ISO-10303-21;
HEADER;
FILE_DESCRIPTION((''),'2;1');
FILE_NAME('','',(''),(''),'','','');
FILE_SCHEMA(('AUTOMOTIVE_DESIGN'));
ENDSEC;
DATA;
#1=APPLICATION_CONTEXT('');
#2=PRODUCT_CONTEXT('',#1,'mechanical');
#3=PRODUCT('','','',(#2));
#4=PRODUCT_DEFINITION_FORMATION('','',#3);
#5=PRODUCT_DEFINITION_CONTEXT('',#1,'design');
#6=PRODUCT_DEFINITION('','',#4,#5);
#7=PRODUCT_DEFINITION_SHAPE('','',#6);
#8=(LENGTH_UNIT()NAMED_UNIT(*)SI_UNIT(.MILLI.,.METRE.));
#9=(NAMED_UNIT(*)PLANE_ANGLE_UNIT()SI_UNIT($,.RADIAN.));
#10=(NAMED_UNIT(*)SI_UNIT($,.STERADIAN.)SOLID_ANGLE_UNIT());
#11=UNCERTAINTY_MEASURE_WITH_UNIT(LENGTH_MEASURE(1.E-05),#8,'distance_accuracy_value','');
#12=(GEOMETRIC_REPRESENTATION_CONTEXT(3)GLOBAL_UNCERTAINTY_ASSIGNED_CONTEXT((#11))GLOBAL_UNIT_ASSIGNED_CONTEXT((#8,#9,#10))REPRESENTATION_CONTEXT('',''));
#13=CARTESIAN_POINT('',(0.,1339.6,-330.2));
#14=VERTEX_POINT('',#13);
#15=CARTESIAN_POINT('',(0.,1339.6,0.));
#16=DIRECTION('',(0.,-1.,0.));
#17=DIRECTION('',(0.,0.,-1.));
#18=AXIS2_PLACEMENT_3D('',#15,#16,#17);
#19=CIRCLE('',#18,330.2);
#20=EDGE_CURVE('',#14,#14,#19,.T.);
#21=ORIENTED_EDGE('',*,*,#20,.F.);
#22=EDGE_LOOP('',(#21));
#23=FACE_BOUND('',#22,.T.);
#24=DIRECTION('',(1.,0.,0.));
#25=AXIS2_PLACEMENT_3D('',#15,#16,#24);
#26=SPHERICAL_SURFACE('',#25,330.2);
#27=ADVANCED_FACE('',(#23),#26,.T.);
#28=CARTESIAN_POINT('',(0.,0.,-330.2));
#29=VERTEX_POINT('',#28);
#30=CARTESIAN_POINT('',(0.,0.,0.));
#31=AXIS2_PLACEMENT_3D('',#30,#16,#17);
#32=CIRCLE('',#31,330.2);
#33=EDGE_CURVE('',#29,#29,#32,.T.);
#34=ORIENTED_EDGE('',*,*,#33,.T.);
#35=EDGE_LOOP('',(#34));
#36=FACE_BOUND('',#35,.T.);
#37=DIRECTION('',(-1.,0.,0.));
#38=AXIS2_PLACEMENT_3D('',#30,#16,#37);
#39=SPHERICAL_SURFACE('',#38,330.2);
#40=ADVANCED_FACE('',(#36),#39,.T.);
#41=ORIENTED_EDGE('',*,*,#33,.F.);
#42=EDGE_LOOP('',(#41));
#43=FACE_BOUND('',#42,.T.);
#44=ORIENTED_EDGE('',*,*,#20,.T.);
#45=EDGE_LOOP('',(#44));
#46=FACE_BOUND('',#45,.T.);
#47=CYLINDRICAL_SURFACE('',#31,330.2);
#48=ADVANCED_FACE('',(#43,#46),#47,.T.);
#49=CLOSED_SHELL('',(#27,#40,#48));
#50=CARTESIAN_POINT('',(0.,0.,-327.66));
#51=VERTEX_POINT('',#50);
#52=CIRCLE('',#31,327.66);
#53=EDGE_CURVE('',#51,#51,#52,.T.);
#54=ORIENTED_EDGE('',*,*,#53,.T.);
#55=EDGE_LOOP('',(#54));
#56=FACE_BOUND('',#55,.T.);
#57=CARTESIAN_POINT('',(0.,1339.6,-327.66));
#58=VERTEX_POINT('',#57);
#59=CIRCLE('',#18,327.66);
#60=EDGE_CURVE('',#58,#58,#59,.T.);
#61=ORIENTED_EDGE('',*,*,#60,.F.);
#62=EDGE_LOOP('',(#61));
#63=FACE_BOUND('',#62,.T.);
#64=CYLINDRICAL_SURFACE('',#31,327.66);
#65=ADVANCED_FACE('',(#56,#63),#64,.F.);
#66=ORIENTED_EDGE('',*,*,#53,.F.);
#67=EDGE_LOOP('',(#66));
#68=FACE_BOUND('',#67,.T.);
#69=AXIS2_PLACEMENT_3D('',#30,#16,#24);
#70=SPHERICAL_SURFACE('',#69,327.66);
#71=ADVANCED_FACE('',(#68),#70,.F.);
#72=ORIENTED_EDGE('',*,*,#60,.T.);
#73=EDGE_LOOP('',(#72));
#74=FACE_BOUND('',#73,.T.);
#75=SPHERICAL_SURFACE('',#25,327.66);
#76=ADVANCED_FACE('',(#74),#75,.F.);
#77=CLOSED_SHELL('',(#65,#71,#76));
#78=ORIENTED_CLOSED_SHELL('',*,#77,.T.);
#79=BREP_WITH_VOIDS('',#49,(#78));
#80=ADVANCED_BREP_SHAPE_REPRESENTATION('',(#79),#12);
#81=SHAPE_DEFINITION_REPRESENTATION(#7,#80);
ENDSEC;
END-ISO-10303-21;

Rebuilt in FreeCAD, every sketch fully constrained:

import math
import FreeCAD as App
import Part
import Sketcher
Q = App.Units.Quantity

doc = App.newDocument("Part")
body = doc.addObject("PartDesign::Body", "Body")

# Sketch on XY plane
sketch1 = doc.addObject("Sketcher::SketchObject", "Sketch")
body.addObject(sketch1)
sketch1.AttachmentSupport = (doc.XY_Plane, [""])
sketch1.MapMode = "FlatFace"
sketch1.addGeometry(Part.LineSegment(App.Vector(0, 1669.8, 0), App.Vector(0, 1667.3, 0)), False)
sketch1.addGeometry(Part.ArcOfCircle(Part.Circle(App.Vector(0, 1339.6, 0), App.Vector(0, 0, 1), 327.7), math.radians(0), math.radians(90)), False)
sketch1.addGeometry(Part.LineSegment(App.Vector(327.7, 1339.6, 0), App.Vector(327.7, 0, 0)), False)
sketch1.addGeometry(Part.ArcOfCircle(Part.Circle(App.Vector(0, 0, 0), App.Vector(0, 0, 1), 327.7), math.radians(-90), math.radians(0)), False)
sketch1.addGeometry(Part.LineSegment(App.Vector(0, -327.7, 0), App.Vector(0, -330.2, 0)), False)
sketch1.addGeometry(Part.ArcOfCircle(Part.Circle(App.Vector(0, 0, 0), App.Vector(0, 0, 1), 330.2), math.radians(-90), math.radians(0)), False)
sketch1.addGeometry(Part.LineSegment(App.Vector(330.2, 0, 0), App.Vector(330.2, 1339.6, 0)), False)
sketch1.addGeometry(Part.ArcOfCircle(Part.Circle(App.Vector(0, 1339.6, 0), App.Vector(0, 0, 1), 330.2), math.radians(0), math.radians(90)), False)
sketch1.addConstraint(Sketcher.Constraint("Coincident", 0, 2, 1, 2))
sketch1.addConstraint(Sketcher.Constraint("Tangent", 1, 1, 2, 1))
sketch1.addConstraint(Sketcher.Constraint("Tangent", 2, 2, 3, 2))
sketch1.addConstraint(Sketcher.Constraint("Coincident", 3, 1, 4, 1))
sketch1.addConstraint(Sketcher.Constraint("Coincident", 4, 2, 5, 1))
sketch1.addConstraint(Sketcher.Constraint("Tangent", 5, 2, 6, 1))
sketch1.addConstraint(Sketcher.Constraint("Tangent", 6, 2, 7, 1))
sketch1.addConstraint(Sketcher.Constraint("Coincident", 7, 2, 0, 1))
sketch1.addConstraint(Sketcher.Constraint("Vertical", 0))
sketch1.addConstraint(Sketcher.Constraint("Vertical", 2))
sketch1.addConstraint(Sketcher.Constraint("Vertical", 4))
sketch1.addConstraint(Sketcher.Constraint("Vertical", 6))
sketch1.addConstraint(Sketcher.Constraint("Coincident", 3, 3, -1, 1))
sketch1.addConstraint(Sketcher.Constraint("Coincident", 5, 3, -1, 1))
sketch1.addConstraint(Sketcher.Constraint("Coincident", 7, 3, 1, 3))
sketch1.addConstraint(Sketcher.Constraint("Equal", 1, 3))
sketch1.addConstraint(Sketcher.Constraint("PointOnObject", 0, 2, -2))
sketch1.addConstraint(Sketcher.Constraint("PointOnObject", 3, 1, -2))
sketch1.addConstraint(Sketcher.Constraint("Radius", 5, Q("13 in")))
sketch1.addConstraint(Sketcher.Constraint("Radius", 1, Q("12.9 in")))
sketch1.addConstraint(Sketcher.Constraint("DistanceY", 2, 2, 2, 1, 1339.6))
revolution = doc.addObject("PartDesign::Revolution", "Revolution")
body.addObject(revolution)
revolution.Profile = sketch1
revolution.ReferenceAxis = (sketch1, ["V_Axis"])
revolution.Angle = 360

doc.recompute()
